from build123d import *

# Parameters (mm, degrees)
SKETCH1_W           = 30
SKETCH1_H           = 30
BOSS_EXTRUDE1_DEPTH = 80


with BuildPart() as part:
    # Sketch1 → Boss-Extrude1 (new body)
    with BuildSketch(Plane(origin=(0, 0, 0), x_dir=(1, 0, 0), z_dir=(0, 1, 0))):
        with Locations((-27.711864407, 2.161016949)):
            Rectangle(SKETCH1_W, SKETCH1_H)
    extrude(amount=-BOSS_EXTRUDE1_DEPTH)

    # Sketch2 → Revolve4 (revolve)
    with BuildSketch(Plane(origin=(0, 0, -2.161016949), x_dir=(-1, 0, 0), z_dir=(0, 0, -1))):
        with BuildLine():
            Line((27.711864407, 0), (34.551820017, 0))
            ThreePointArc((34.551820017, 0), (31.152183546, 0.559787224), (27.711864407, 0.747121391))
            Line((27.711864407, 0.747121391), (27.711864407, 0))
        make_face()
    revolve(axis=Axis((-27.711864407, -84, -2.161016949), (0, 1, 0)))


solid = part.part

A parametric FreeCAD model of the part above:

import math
import FreeCAD as App
import Part
import Sketcher

V = App.Vector

doc = App.newDocument("Part")
body = doc.addObject("PartDesign::Body", "Body")

# Sketch on XZ plane
sketch1 = body.newObject("Sketcher::SketchObject", "Sketch")
sketch1.AttachmentSupport = (doc.getObject("XZ_Plane"), [""])
sketch1.MapMode = "FlatFace"
sketch1.addGeometry([
    Part.LineSegment(V(-43, -17, 0), V(-43, 13, 0)),
    Part.LineSegment(V(-43, 13, 0), V(-13, 13, 0)),
    Part.LineSegment(V(-13, 13, 0), V(-13, -17, 0)),
    Part.LineSegment(V(-13, -17, 0), V(-43, -17, 0)),
], False)
sketch1.addConstraint([
    Sketcher.Constraint("Coincident", 0, 2, 1, 1),
    Sketcher.Constraint("Coincident", 1, 2, 2, 1),
    Sketcher.Constraint("Coincident", 2, 2, 3, 1),
    Sketcher.Constraint("Coincident", 3, 2, 0, 1),
    Sketcher.Constraint("Vertical", 0),
    Sketcher.Constraint("Horizontal", 1),
    Sketcher.Constraint("Vertical", 2),
    Sketcher.Constraint("Horizontal", 3),
    Sketcher.Constraint("Equal", 3, 0),
    Sketcher.Constraint("DistanceX", 1, 1, 1, 2, 30.0),
    Sketcher.Constraint("DistanceX", 0, 2, -1, 1, 42.711864),
    Sketcher.Constraint("DistanceY", -1, 1, 0, 2, 12.838983),
])
pad1 = body.newObject("PartDesign::Pad", "Pad")
pad1.Profile = sketch1
pad1.Length = 80

# Sketch on XY plane
sketch2 = body.newObject("Sketcher::SketchObject", "Sketch001")
sketch2.AttachmentSupport = (doc.getObject("XY_Plane"), [""])
sketch2.MapMode = "FlatFace"
sketch2.AttachmentOffset = App.Placement(V(0, 0, -2.161017), App.Rotation())
sketch2.addGeometry([
    Part.LineSegment(V(-27.7, 0, 0), V(-34.6, 0, 0)),
    Part.ArcOfCircle(Part.Circle(V(-27.7, -30.9, 0), V(0, 0, 1), 31.7), math.radians(90), math.radians(102.47)),
    Part.LineSegment(V(-27.7, 0.7, 0), V(-27.7, 0, 0)),
], False)
sketch2.addGeometry(Part.LineSegment(V(-27.7, -30.9, 0), V(-27.7, 0.7, 0)), True)  # axis
sketch2.addConstraint([
    Sketcher.Constraint("Coincident", 0, 2, 1, 2),
    Sketcher.Constraint("Coincident", 1, 1, 2, 1),
    Sketcher.Constraint("Coincident", 2, 2, 0, 1),
    Sketcher.Constraint("Horizontal", 0),
    Sketcher.Constraint("Vertical", 2),
    Sketcher.Constraint("Vertical", 3),
    Sketcher.Constraint("Coincident", 3, 1, 1, 3),
    Sketcher.Constraint("Coincident", 3, 2, 1, 1),
    Sketcher.Constraint("PointOnObject", 0, 2, -1),
    Sketcher.Constraint("Radius", 1, 31.683729),
    Sketcher.Constraint("DistanceY", 2, 2, 2, 1, 0.747121),
    Sketcher.Constraint("DistanceX", 0, 2, -1, 1, 34.55182),
])
revolution = body.newObject("PartDesign::Revolution", "Revolution")
revolution.Profile = sketch2
revolution.ReferenceAxis = (sketch2, ["Axis0"])
revolution.Angle = 360

doc.recompute()
